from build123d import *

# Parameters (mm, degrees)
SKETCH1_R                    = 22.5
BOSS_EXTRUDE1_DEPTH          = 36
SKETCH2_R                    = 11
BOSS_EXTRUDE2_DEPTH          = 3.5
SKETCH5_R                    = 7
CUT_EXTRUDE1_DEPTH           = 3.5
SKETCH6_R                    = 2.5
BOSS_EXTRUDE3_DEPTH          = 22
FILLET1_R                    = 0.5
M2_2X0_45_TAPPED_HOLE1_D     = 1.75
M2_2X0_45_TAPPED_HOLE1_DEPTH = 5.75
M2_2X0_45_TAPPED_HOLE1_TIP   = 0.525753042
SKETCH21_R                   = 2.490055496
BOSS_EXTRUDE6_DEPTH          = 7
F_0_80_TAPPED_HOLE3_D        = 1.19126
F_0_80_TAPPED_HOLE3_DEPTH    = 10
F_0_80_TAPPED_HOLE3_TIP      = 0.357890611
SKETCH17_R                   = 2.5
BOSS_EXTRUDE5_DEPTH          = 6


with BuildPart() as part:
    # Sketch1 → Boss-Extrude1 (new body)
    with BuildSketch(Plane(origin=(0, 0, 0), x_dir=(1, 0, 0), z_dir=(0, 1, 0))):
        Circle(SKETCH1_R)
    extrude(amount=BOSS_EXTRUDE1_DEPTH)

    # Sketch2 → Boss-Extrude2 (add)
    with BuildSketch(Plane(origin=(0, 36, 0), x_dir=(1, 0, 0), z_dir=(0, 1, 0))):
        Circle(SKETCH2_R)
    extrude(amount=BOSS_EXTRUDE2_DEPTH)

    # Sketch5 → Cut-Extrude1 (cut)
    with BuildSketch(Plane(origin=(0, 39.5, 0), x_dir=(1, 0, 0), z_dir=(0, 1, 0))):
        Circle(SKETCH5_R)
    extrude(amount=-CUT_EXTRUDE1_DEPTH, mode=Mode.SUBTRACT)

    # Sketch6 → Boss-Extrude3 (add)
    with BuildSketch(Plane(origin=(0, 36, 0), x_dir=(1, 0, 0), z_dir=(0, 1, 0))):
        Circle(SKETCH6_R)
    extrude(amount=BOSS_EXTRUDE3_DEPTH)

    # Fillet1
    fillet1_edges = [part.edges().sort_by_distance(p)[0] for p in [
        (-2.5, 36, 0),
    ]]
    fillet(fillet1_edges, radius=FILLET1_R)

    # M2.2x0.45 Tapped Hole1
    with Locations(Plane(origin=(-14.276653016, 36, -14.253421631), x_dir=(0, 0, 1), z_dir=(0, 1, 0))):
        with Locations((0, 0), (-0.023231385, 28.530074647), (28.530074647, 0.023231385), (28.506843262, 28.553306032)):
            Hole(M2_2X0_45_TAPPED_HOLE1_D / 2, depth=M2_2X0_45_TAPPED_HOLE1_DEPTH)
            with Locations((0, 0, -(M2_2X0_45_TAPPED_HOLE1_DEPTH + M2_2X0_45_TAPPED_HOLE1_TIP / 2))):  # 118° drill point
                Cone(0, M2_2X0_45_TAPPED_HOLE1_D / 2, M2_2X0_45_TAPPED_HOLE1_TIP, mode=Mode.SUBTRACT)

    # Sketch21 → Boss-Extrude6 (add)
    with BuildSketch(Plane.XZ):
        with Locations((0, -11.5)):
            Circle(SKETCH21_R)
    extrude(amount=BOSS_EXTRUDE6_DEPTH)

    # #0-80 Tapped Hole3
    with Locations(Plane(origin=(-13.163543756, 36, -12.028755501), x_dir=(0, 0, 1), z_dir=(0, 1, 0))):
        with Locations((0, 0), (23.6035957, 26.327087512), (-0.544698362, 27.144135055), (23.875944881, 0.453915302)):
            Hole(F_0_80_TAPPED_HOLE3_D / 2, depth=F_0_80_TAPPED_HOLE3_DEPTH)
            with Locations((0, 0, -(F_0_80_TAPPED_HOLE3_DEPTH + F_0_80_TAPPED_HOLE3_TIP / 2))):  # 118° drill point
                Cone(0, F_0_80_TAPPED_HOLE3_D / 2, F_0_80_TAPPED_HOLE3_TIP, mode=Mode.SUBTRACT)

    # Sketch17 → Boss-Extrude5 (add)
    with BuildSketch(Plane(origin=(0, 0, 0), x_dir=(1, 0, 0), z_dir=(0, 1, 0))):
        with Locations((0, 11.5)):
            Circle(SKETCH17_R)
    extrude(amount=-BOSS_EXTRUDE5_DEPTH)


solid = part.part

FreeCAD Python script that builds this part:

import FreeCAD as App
import Part
import Sketcher
Q = App.Units.Quantity


def edges_at(feature, points):
    """Names of the edges that pass closest to the given points."""
    edges = feature.Shape.Edges
    near = lambda p: min(range(len(edges)), key=lambda i: edges[i].distToShape(Part.Vertex(*p))[0])
    return sorted({f"Edge{near(p) + 1}" for p in points})

doc = App.newDocument("Part")
params = doc.addObject("Spreadsheet::Sheet", "Params")
for row, (alias, value) in enumerate([
    ("sketch1_diameter", "45 mm"),
    ("pad1_length", "36 mm"),
    ("sketch2_diameter", "22 mm"),
    ("pad2_length", "3.5 mm"),
    ("sketch3_diameter", "14 mm"),
    ("pocket1_length", "3.5 mm"),
    ("sketch4_diameter", "5 mm"),
    ("pad3_length", "22 mm"),
    ("fillet_radius", "0.5 mm"),
    ("sketch5_diameter", "1.75 mm"),
    ("hole_diameter", "1.75 mm"),
    ("hole_depth", "5.75 mm"),
    ("pad4_length", "7 mm"),
    ("hole2_diameter", "1.19126 mm"),
    ("hole2_depth", "10 mm"),
    ("sketch8_diameter", "5 mm"),
    ("pad5_length", "6 mm"),
], start=1):
    params.set(f"A{row}", alias)
    params.set(f"B{row}", "=" + value)
    params.setAlias(f"B{row}", alias)

body = doc.addObject("PartDesign::Body", "Body")

# Sketch on XZ plane
sketch1 = doc.addObject("Sketcher::SketchObject", "Sketch")
body.addObject(sketch1)
sketch1.AttachmentSupport = (doc.XZ_Plane, [""])
sketch1.MapMode = "FlatFace"
sketch1.addGeometry(Part.Circle(App.Vector(0, 0, 0), App.Vector(0, 0, 1), 22.5), False)
sketch1.addConstraint([
    Sketcher.Constraint("Coincident", 0, 3, -1, 1),
    Sketcher.Constraint("Diameter", 0, Q("45 mm")),
])
sketch1.setExpression("Constraints[1]", "Params.sketch1_diameter")
pad1 = doc.addObject("PartDesign::Pad", "Pad")
body.addObject(pad1)
pad1.Profile = sketch1
pad1.setExpression("Length", "Params.pad1_length")
pad1.Reversed = True

# Sketch on XZ plane
sketch2 = doc.addObject("Sketcher::SketchObject", "Sketch001")
body.addObject(sketch2)
sketch2.AttachmentSupport = (doc.XZ_Plane, [""])
sketch2.MapMode = "FlatFace"
sketch2.AttachmentOffset = App.Placement(App.Vector(0, 0, -36), App.Rotation())
sketch2.addGeometry(Part.Circle(App.Vector(0, 0, 0), App.Vector(0, 0, 1), 11), False)
sketch2.addConstraint([
    Sketcher.Constraint("Coincident", 0, 3, -1, 1),
    Sketcher.Constraint("Diameter", 0, Q("22 mm")),
])
sketch2.setExpression("Constraints[1]", "Params.sketch2_diameter")
pad2 = doc.addObject("PartDesign::Pad", "Pad001")
body.addObject(pad2)
pad2.Profile = sketch2
pad2.setExpression("Length", "Params.pad2_length")
pad2.Reversed = True

# Sketch on XZ plane
sketch3 = doc.addObject("Sketcher::SketchObject", "Sketch002")
body.addObject(sketch3)
sketch3.AttachmentSupport = (doc.XZ_Plane, [""])
sketch3.MapMode = "FlatFace"
sketch3.AttachmentOffset = App.Placement(App.Vector(0, 0, -39.5), App.Rotation())
sketch3.addGeometry(Part.Circle(App.Vector(0, 0, 0), App.Vector(0, 0, 1), 7), False)
sketch3.addConstraint([
    Sketcher.Constraint("Coincident", 0, 3, -1, 1),
    Sketcher.Constraint("Diameter", 0, Q("14 mm")),
])
sketch3.setExpression("Constraints[1]", "Params.sketch3_diameter")
pocket1 = doc.addObject("PartDesign::Pocket", "Pocket")
body.addObject(pocket1)
pocket1.Profile = sketch3
pocket1.setExpression("Length", "Params.pocket1_length")
pocket1.Reversed = True

# Sketch on XZ plane
sketch4 = doc.addObject("Sketcher::SketchObject", "Sketch003")
body.addObject(sketch4)
sketch4.AttachmentSupport = (doc.XZ_Plane, [""])
sketch4.MapMode = "FlatFace"
sketch4.AttachmentOffset = App.Placement(App.Vector(0, 0, -36), App.Rotation())
sketch4.addGeometry(Part.Circle(App.Vector(0, 0, 0), App.Vector(0, 0, 1), 2.5), False)
sketch4.addConstraint([
    Sketcher.Constraint("Coincident", 0, 3, -1, 1),
    Sketcher.Constraint("Diameter", 0, Q("5 mm")),
])
sketch4.setExpression("Constraints[1]", "Params.sketch4_diameter")
pad3 = doc.addObject("PartDesign::Pad", "Pad002")
body.addObject(pad3)
pad3.Profile = sketch4
pad3.setExpression("Length", "Params.pad3_length")
pad3.Reversed = True
doc.recompute()

fillet = doc.addObject("PartDesign::Fillet", "Fillet")
body.addObject(fillet)
fillet.Base = (pad3, edges_at(pad3, [(-2.5, 36, 0)]))
fillet.setExpression("Radius", "Params.fillet_radius")

# Sketch on XZ plane
sketch5 = doc.addObject("Sketcher::SketchObject", "Sketch004")
body.addObject(sketch5)
sketch5.AttachmentSupport = (doc.XZ_Plane, [""])
sketch5.MapMode = "FlatFace"
sketch5.AttachmentOffset = App.Placement(App.Vector(0, 0, -36), App.Rotation())
sketch5.addGeometry([
    Part.Circle(App.Vector(-14.276653, -14.253422, 0), App.Vector(0, 0, 1), 0.875),
    Part.Circle(App.Vector(14.253422, -14.276653, 0), App.Vector(0, 0, 1), 0.875),
    Part.Circle(App.Vector(-14.253422, 14.276653, 0), App.Vector(0, 0, 1), 0.875),
    Part.Circle(App.Vector(14.276653, 14.253422, 0), App.Vector(0, 0, 1), 0.875),
], False)
sketch5.addConstraint([
    Sketcher.Constraint("Equal", 0, 1),
    Sketcher.Constraint("Equal", 1, 2),
    Sketcher.Constraint("Equal", 2, 3),
    Sketcher.Constraint("Symmetric", 1, 3, 2, 3, -1, 1),
    Sketcher.Constraint("Symmetric", 0, 3, 3, 3, -1, 1),
    Sketcher.Constraint("Diameter", 0, Q("1.75 mm")),
    Sketcher.Constraint("DistanceY", 0, 3, -1, 1, Q("14.253422 mm")),
    Sketcher.Constraint("DistanceX", -1, 1, 1, 3, Q("14.253422 mm")),
    Sketcher.Constraint("DistanceY", 1, 3, 0, 3, Q("0.023231 mm")),
    Sketcher.Constraint("DistanceX", 0, 3, 2, 3, Q("0.023231 mm")),
])
sketch5.setExpression("Constraints[5]", "Params.sketch5_diameter")
doc.recompute()
hole = doc.addObject("PartDesign::Hole", "Hole")
body.addObject(hole)
hole.Profile = sketch5
hole.ThreadType = "None"
hole.setExpression("Diameter", "Params.hole_diameter")
hole.DepthType = "Dimension"
hole.setExpression("Depth", "Params.hole_depth")
hole.DrillPoint = "Angled"
hole.DrillPointAngle = 118
hole.Reversed = True

# Sketch on XZ plane
sketch6 = doc.addObject("Sketcher::SketchObject", "Sketch005")
body.addObject(sketch6)
sketch6.AttachmentSupport = (doc.XZ_Plane, [""])
sketch6.MapMode = "FlatFace"
sketch6.addGeometry(Part.Circle(App.Vector(0, -11.5, 0), App.Vector(0, 0, 1), 2.490055), False)
sketch6.addConstraint([
    Sketcher.Constraint("PointOnObject", 0, 3, -2),
    Sketcher.Constraint("DistanceY", 0, 3, -1, 1, Q("11.5 mm")),
    Sketcher.Constraint("Diameter", 0, Q("4.980111 mm")),
])
pad4 = doc.addObject("PartDesign::Pad", "Pad003")
body.addObject(pad4)
pad4.Profile = sketch6
pad4.setExpression("Length", "Params.pad4_length")

# Sketch on XZ plane
sketch7 = doc.addObject("Sketcher::SketchObject", "Sketch006")
body.addObject(sketch7)
sketch7.AttachmentSupport = (doc.XZ_Plane, [""])
sketch7.MapMode = "FlatFace"
sketch7.AttachmentOffset = App.Placement(App.Vector(0, 0, -36), App.Rotation())
sketch7.addGeometry([
    Part.Circle(App.Vector(-13.163544, -12.028756, 0), App.Vector(0, 0, 1), 0.59563),
    Part.Circle(App.Vector(13.163544, 11.57484, 0), App.Vector(0, 0, 1), 0.59563),
    Part.Circle(App.Vector(13.980591, -12.573454, 0), App.Vector(0, 0, 1), 0.59563),
    Part.Circle(App.Vector(-12.709628, 11.847189, 0), App.Vector(0, 0, 1), 0.59563),
], False)
sketch7.addConstraint([
    Sketcher.Constraint("Equal", 0, 1),
    Sketcher.Constraint("Equal", 1, 2),
    Sketcher.Constraint("Equal", 2, 3),
    Sketcher.Constraint("Diameter", 0, Q("1.19126 mm")),
    Sketcher.Constraint("DistanceY", 2, 3, 0, 3, Q("0.544698 mm")),
    Sketcher.Constraint("DistanceY", -1, 1, 1, 3, Q("11.57484 mm")),
    Sketcher.Constraint("DistanceX", -1, 1, 2, 3, Q("13.980591 mm")),
    Sketcher.Constraint("DistanceX", 3, 3, -1, 1, Q("12.709628 mm")),
    Sketcher.Constraint("DistanceY", -1, 1, 3, 3, Q("11.847189 mm")),
    Sketcher.Constraint("DistanceX", 0, 3, -1, 1, Q("13.163544 mm")),
    Sketcher.Constraint("DistanceY", 0, 3, -1, 1, Q("12.028756 mm")),
    Sketcher.Constraint("DistanceX", -1, 1, 1, 3, Q("13.163544 mm")),
])
doc.recompute()
hole2 = doc.addObject("PartDesign::Hole", "Hole001")
body.addObject(hole2)
hole2.Profile = sketch7
hole2.ThreadType = "None"
hole2.setExpression("Diameter", "Params.hole2_diameter")
hole2.DepthType = "Dimension"
hole2.setExpression("Depth", "Params.hole2_depth")
hole2.DrillPoint = "Angled"
hole2.DrillPointAngle = 118
hole2.Reversed = True

# Sketch on XZ plane
sketch8 = doc.addObject("Sketcher::SketchObject", "Sketch007")
body.addObject(sketch8)
sketch8.AttachmentSupport = (doc.XZ_Plane, [""])
sketch8.MapMode = "FlatFace"
sketch8.addGeometry(Part.Circle(App.Vector(0, -11.5, 0), App.Vector(0, 0, 1), 2.5), False)
sketch8.addConstraint([
    Sketcher.Constraint("PointOnObject", 0, 3, -2),
    Sketcher.Constraint("Diameter", 0, Q("5 mm")),
    Sketcher.Constraint("DistanceY", 0, 3, -1, 1, Q("11.5 mm")),
])
sketch8.setExpression("Constraints[1]", "Params.sketch8_diameter")
pad5 = doc.addObject("PartDesign::Pad", "Pad004")
body.addObject(pad5)
pad5.Profile = sketch8
pad5.setExpression("Length", "Params.pad5_length")

doc.recompute()
